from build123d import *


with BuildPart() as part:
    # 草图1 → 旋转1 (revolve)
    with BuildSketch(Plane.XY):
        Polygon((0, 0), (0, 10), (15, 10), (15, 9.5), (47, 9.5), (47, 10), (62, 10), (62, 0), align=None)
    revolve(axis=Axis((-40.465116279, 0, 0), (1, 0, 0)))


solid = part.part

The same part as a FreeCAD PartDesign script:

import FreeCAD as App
import Part
import Sketcher

V = App.Vector
Q = App.Units.Quantity


def add_polygon(sketch, points):
    """Adds a closed chain of lines whose ends are joined by coincident constraints."""
    first, n = sketch.GeometryCount, len(points)
    for a, b in zip(points, points[1:] + points[:1]):
        sketch.addGeometry(Part.LineSegment(App.Vector(*a, 0), App.Vector(*b, 0)), False)
    for i in range(n):
        sketch.addConstraint(Sketcher.Constraint("Coincident", first + i, 2, first + (i + 1) % n, 1))

doc = App.newDocument("Part")
body = doc.addObject("PartDesign::Body", "Body")

# Sketch on XY plane
sketch1 = body.newObject("Sketcher::SketchObject", "Sketch")
sketch1.AttachmentSupport = (doc.getObject("XY_Plane"), [""])
sketch1.MapMode = "FlatFace"
add_polygon(sketch1, [(0, 10), (0, 0), (62, 0), (62, 10), (47, 10), (47, 9.5), (15, 9.5), (15, 10)])  # lines 0-7
sketch1.addConstraint(Sketcher.Constraint("Vertical", 0))
sketch1.addConstraint(Sketcher.Constraint("Horizontal", 1))
sketch1.addConstraint(Sketcher.Constraint("Vertical", 2))
sketch1.addConstraint(Sketcher.Constraint("Horizontal", 3))
sketch1.addConstraint(Sketcher.Constraint("Vertical", 4))
sketch1.addConstraint(Sketcher.Constraint("Horizontal", 5))
sketch1.addConstraint(Sketcher.Constraint("Vertical", 6))
sketch1.addConstraint(Sketcher.Constraint("Horizontal", 7))
sketch1.addConstraint(Sketcher.Constraint("Coincident", 0, 2, -1, 1))
sketch1.addConstraint(Sketcher.Constraint("Horizontal", 3, 2, 6, 2))
sketch1.addConstraint(Sketcher.Constraint("Equal", 3, 7))
sketch1.addConstraint(Sketcher.Constraint("DistanceX", 1, 1, 1, 2, Q("62 mm")))
sketch1.addConstraint(Sketcher.Constraint("DistanceX", 3, 2, 3, 1, Q("15 mm")))
sketch1.addConstraint(Sketcher.Constraint("DistanceY", 0, 2, 0, 1, Q("10 mm")))
sketch1.addConstraint(Sketcher.Constraint("DistanceY", 4, 2, 4, 1, Q("0.5 mm")))
revolution = body.newObject("PartDesign::Revolution", "Revolution")
revolution.Profile = sketch1
revolution.ReferenceAxis = (sketch1, ["H_Axis"])
revolution.Angle = 360

doc.recompute()
